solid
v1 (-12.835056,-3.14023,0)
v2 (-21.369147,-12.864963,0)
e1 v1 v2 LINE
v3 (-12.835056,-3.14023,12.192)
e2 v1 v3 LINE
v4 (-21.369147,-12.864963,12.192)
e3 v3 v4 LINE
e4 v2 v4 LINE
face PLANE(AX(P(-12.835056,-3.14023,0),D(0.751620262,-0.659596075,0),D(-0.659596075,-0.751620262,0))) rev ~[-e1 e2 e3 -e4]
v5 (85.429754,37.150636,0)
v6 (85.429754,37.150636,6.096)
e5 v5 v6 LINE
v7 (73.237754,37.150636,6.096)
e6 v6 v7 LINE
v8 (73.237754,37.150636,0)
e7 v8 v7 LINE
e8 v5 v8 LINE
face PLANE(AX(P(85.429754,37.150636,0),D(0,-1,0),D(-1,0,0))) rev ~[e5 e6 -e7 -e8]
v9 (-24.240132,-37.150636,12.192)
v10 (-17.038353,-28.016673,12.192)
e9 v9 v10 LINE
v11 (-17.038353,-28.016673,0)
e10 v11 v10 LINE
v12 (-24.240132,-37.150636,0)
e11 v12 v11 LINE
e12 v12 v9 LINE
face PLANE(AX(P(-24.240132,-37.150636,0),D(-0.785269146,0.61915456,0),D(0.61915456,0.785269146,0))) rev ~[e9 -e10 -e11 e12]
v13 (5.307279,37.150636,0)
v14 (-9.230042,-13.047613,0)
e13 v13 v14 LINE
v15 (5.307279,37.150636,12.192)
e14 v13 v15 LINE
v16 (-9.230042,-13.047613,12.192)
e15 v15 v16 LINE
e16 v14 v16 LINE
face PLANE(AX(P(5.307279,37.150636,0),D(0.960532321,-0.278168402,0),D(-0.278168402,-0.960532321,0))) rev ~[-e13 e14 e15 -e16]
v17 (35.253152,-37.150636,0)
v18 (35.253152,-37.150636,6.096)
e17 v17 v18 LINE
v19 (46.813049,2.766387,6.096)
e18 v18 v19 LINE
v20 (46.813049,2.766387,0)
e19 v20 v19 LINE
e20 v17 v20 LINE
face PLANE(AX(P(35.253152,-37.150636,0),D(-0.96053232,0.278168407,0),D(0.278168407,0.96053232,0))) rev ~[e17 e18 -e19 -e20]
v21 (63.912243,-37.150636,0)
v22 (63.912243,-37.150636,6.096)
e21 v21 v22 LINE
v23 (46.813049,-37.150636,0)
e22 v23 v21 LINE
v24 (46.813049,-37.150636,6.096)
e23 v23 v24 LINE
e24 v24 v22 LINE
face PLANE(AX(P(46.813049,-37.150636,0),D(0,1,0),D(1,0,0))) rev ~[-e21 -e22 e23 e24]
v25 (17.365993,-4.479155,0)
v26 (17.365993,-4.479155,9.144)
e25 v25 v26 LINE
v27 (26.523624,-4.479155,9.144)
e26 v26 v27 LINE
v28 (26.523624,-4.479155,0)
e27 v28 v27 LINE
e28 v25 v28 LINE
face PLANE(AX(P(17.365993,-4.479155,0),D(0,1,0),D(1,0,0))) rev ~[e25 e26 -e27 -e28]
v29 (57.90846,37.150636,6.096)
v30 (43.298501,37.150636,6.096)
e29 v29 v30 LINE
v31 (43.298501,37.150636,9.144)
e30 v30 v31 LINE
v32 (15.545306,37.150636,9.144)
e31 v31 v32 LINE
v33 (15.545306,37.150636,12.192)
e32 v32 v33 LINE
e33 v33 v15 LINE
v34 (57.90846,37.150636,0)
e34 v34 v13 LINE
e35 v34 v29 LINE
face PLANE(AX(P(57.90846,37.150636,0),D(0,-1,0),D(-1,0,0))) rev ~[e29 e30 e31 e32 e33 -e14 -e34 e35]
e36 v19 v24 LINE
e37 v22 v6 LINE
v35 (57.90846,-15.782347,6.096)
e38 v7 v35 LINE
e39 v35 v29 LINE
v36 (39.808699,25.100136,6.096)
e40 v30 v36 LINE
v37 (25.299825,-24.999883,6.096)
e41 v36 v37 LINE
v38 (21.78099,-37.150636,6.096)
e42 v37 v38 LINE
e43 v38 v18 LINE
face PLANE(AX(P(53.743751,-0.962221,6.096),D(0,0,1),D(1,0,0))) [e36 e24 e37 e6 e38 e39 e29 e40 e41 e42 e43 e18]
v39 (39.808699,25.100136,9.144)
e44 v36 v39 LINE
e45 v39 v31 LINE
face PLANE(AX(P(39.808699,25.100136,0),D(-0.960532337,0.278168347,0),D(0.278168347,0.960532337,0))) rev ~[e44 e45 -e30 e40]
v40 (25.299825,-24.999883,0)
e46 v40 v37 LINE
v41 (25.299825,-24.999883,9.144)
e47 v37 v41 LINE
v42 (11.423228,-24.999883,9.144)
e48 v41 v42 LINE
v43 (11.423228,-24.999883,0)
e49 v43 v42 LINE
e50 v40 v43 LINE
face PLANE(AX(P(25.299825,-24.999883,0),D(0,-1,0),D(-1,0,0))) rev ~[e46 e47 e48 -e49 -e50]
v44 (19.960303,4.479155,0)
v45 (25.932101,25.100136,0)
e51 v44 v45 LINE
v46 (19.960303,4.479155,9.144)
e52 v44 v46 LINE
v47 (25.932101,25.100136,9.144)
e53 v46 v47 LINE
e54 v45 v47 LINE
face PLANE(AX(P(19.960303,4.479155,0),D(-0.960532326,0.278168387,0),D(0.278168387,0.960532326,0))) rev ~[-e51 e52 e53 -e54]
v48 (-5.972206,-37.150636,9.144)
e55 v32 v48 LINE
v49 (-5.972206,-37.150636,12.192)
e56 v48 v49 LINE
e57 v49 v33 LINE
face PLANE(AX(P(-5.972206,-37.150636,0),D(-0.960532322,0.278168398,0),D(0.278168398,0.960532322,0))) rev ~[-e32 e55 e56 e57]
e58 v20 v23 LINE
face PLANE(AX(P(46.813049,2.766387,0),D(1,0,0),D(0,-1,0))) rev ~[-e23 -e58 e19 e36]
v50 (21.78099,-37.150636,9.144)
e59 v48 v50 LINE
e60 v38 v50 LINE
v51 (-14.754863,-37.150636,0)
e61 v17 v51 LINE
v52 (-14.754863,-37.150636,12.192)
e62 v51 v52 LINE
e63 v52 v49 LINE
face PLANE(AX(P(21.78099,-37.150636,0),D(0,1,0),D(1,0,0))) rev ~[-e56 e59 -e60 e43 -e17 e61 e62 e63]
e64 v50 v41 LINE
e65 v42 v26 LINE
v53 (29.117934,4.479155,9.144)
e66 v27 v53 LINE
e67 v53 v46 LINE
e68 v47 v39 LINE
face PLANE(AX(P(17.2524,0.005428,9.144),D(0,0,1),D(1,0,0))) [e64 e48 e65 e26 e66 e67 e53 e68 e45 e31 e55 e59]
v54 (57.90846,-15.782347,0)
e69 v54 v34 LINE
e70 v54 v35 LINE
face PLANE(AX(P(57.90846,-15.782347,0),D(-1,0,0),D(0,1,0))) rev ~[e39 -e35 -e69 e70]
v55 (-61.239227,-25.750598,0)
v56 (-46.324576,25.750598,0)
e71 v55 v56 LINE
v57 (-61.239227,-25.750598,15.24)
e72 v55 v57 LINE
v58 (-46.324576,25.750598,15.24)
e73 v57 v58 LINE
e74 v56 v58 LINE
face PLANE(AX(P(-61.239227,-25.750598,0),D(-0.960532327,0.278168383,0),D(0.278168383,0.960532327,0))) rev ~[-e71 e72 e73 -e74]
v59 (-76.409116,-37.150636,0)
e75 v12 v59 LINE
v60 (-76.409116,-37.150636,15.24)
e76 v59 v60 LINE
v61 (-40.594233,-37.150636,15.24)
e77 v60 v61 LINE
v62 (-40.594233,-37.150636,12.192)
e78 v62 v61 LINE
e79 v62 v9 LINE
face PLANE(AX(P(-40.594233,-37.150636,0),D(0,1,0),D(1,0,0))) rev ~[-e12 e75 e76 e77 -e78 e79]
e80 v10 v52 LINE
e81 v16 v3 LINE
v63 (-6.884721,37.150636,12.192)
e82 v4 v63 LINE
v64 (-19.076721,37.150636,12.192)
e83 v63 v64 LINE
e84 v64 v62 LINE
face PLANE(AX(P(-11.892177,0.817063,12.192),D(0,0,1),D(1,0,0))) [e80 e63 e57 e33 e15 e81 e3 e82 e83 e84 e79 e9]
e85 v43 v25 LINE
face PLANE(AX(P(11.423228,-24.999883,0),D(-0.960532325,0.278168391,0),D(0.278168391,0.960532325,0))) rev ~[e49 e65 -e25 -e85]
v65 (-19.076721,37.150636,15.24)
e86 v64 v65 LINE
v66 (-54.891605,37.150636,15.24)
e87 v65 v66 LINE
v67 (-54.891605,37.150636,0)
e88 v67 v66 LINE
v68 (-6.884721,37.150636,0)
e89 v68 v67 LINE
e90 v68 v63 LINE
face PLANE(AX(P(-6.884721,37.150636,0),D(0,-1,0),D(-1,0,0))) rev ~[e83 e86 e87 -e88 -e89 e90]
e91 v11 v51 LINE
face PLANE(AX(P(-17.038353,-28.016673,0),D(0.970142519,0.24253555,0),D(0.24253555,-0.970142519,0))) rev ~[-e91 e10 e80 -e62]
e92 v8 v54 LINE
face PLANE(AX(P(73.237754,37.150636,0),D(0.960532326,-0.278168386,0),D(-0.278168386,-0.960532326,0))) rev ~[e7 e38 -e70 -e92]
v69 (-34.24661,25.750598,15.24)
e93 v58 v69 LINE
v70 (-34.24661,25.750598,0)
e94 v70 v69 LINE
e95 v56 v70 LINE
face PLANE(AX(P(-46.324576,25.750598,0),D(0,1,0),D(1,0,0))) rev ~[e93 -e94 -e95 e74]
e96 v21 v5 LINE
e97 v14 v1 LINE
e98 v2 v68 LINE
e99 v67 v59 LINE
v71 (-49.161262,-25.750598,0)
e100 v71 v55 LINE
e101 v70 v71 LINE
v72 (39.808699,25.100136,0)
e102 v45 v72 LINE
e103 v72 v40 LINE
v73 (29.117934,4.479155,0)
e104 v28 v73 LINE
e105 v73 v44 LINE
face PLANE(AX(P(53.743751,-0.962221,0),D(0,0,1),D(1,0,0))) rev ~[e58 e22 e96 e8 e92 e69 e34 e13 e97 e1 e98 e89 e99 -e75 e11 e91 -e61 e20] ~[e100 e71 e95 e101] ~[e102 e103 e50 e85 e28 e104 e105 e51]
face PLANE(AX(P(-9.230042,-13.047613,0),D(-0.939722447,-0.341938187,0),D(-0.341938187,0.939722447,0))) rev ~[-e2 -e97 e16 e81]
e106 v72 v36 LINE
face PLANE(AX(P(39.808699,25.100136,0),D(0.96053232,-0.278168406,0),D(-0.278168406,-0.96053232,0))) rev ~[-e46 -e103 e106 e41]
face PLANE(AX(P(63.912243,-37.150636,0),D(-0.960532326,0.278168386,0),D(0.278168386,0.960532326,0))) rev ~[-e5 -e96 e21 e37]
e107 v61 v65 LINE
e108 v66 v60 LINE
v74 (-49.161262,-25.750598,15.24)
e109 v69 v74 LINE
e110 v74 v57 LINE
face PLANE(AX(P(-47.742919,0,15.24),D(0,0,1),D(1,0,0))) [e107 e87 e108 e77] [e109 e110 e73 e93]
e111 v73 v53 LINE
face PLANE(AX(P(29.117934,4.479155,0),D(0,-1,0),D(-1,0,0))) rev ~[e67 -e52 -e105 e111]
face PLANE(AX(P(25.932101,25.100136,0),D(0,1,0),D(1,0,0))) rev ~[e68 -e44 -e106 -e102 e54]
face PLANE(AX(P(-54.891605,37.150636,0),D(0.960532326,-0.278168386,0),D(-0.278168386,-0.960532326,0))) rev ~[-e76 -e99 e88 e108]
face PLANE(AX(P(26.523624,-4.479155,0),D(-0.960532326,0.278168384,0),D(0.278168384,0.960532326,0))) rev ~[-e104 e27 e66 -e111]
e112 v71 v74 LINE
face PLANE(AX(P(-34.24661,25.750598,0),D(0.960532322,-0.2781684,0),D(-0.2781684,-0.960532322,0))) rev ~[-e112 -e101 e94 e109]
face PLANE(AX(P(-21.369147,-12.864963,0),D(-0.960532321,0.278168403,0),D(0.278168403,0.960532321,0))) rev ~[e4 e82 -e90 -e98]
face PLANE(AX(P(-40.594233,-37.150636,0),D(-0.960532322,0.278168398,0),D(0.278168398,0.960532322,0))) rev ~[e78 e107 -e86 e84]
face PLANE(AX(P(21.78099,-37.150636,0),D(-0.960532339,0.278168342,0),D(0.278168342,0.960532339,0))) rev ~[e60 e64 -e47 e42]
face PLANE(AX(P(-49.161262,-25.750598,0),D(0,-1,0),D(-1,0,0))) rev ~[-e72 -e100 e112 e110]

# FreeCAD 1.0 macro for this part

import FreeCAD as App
import Part
import Sketcher
Q = App.Units.Quantity

doc = App.newDocument("Part")
body = doc.addObject("PartDesign::Body", "Body")

# Sketch on XY plane
sketch1 = doc.addObject("Sketcher::SketchObject", "Sketch")
body.addObject(sketch1)
sketch1.AttachmentSupport = (doc.XY_Plane, [""])
sketch1.MapMode = "FlatFace"
sketch1.addGeometry([
    Part.LineSegment(App.Vector(-19, 37, 0), App.Vector(-55, 37, 0)),  # 0
    Part.LineSegment(App.Vector(-55, 37, 0), App.Vector(-76, -37, 0)),  # 1
    Part.LineSegment(App.Vector(-76, -37, 0), App.Vector(-41, -37, 0)),  # 2
    Part.LineSegment(App.Vector(-41, -37, 0), App.Vector(-19, 37, 0)),  # 3
    Part.LineSegment(App.Vector(-49, -26, 0), App.Vector(-61, -26, 0)),  # 4
    Part.LineSegment(App.Vector(-61, -26, 0), App.Vector(-46, 26, 0)),  # 5
    Part.LineSegment(App.Vector(-46, 26, 0), App.Vector(-34, 26, 0)),  # 6
    Part.LineSegment(App.Vector(-34, 26, 0), App.Vector(-49, -26, 0)),  # 7
], False)
sketch1.addConstraint([
    Sketcher.Constraint("Coincident", 0, 2, 1, 1),
    Sketcher.Constraint("Coincident", 1, 2, 2, 1),
    Sketcher.Constraint("Coincident", 2, 2, 3, 1),
    Sketcher.Constraint("Coincident", 3, 2, 0, 1),
    Sketcher.Constraint("Coincident", 4, 2, 5, 1),
    Sketcher.Constraint("Coincident", 5, 2, 6, 1),
    Sketcher.Constraint("Coincident", 6, 2, 7, 1),
    Sketcher.Constraint("Coincident", 7, 2, 4, 1),
    Sketcher.Constraint("Horizontal", 0),
    Sketcher.Constraint("Horizontal", 2),
    Sketcher.Constraint("Horizontal", 4),
    Sketcher.Constraint("Horizontal", 6),
    Sketcher.Constraint("Parallel", 1, 3),
    Sketcher.Constraint("Parallel", 3, 5),
    Sketcher.Constraint("Parallel", 5, 7),
    Sketcher.Constraint("DistanceY", 4, 2, -1, 1, 25.750598),
    Sketcher.Constraint("DistanceY", -1, 1, 5, 2, 25.750598),
    Sketcher.Constraint("Distance", 7, 53.617348),
    Sketcher.Constraint("DistanceX", 0, 2, 0, 1, 35.814884),
    Sketcher.Constraint("DistanceX", 4, 2, 4, 1, 12.077965),
    Sketcher.Constraint("DistanceX", 3, 2, -1, 1, 19.076721),
    Sketcher.Constraint("DistanceX", 6, 2, -1, 1, 34.24661),
    Sketcher.Constraint("DistanceX", 1, 2, 0, 2, 21.517511),
    Sketcher.Constraint("DistanceY", -1, 1, 0, 2, 37.150636),
])
pad1 = doc.addObject("PartDesign::Pad", "Pad")
body.addObject(pad1)
pad1.Profile = sketch1
pad1.Length = Q("0.6 in")

# Sketch on XY plane
sketch2 = doc.addObject("Sketcher::SketchObject", "Sketch001")
body.addObject(sketch2)
sketch2.AttachmentSupport = (doc.XY_Plane, [""])
sketch2.MapMode = "FlatFace"
sketch2.addGeometry([
    Part.LineSegment(App.Vector(-7, 37, 0), App.Vector(-19, 37, 0)),  # 0
    Part.LineSegment(App.Vector(-19, 37, 0), App.Vector(-41, -37, 0)),  # 1
    Part.LineSegment(App.Vector(-41, -37, 0), App.Vector(-24, -37, 0)),  # 2
    Part.LineSegment(App.Vector(-24, -37, 0), App.Vector(-17, -28, 0)),  # 3
    Part.LineSegment(App.Vector(-17, -28, 0), App.Vector(-15, -37, 0)),  # 4
    Part.LineSegment(App.Vector(-15, -37, 0), App.Vector(-6, -37, 0)),  # 5
    Part.LineSegment(App.Vector(-6, -37, 0), App.Vector(16, 37, 0)),  # 6
    Part.LineSegment(App.Vector(16, 37, 0), App.Vector(5, 37, 0)),  # 7
    Part.LineSegment(App.Vector(5, 37, 0), App.Vector(-9, -13, 0)),  # 8
    Part.LineSegment(App.Vector(-9, -13, 0), App.Vector(-13, -3, 0)),  # 9
    Part.LineSegment(App.Vector(-13, -3, 0), App.Vector(-21, -13, 0)),  # 10
    Part.LineSegment(App.Vector(-21, -13, 0), App.Vector(-7, 37, 0)),  # 11
], False)
sketch2.addConstraint([
    Sketcher.Constraint("Coincident", 0, 2, 1, 1),
    Sketcher.Constraint("Coincident", 1, 2, 2, 1),
    Sketcher.Constraint("Coincident", 2, 2, 3, 1),
    Sketcher.Constraint("Coincident", 3, 2, 4, 1),
    Sketcher.Constraint("Coincident", 4, 2, 5, 1),
    Sketcher.Constraint("Coincident", 5, 2, 6, 1),
    Sketcher.Constraint("Coincident", 6, 2, 7, 1),
    Sketcher.Constraint("Coincident", 7, 2, 8, 1),
    Sketcher.Constraint("Coincident", 8, 2, 9, 1),
    Sketcher.Constraint("Coincident", 9, 2, 10, 1),
    Sketcher.Constraint("Coincident", 10, 2, 11, 1),
    Sketcher.Constraint("Coincident", 11, 2, 0, 1),
    Sketcher.Constraint("Horizontal", 0),
    Sketcher.Constraint("Horizontal", 2),
    Sketcher.Constraint("Horizontal", 5),
    Sketcher.Constraint("Horizontal", 7),
    Sketcher.Constraint("Parallel", 1, 6),
    Sketcher.Constraint("Parallel", 6, 8),
    Sketcher.Constraint("Parallel", 8, 11),
    Sketcher.Constraint("Horizontal", 2, 2, 4, 2),
    Sketcher.Constraint("Horizontal", 0, 2, 6, 2),
    Sketcher.Constraint("DistanceX", 0, 2, 0, 1, Q("0.48 in")),
    Sketcher.Constraint("DistanceX", 0, 2, 7, 2, Q("0.96 in")),
    Sketcher.Constraint("DistanceX", 2, 1, 2, 2, 16.354101),
    Sketcher.Constraint("DistanceX", 4, 2, -1, 1, Q("0.5809001 in")),
    Sketcher.Constraint("Distance", 10, 12.938359),
    Sketcher.Constraint("Distance", 11, 52.070709),
    Sketcher.Constraint("DistanceX", 5, 1, 5, 2, 8.782657),
    Sketcher.Constraint("DistanceX", 7, 2, 7, 1, 10.238027),
    Sketcher.Constraint("DistanceX", 0, 2, -1, 1, 19.076721),
    Sketcher.Constraint("DistanceX", 8, 2, -1, 1, 9.230042),
    Sketcher.Constraint("DistanceY", 9, 2, -1, 1, 3.14023),
    Sketcher.Constraint("DistanceY", 1, 2, 0, 2, 74.301272),
    Sketcher.Constraint("DistanceX", 2, 2, 3, 2, 7.201779),
    Sketcher.Constraint("DistanceY", 3, 2, 0, 2, 65.167309),
    Sketcher.Constraint("DistanceX", 9, 2, 5, 2, 6.86285),
])
pad2 = doc.addObject("PartDesign::Pad", "Pad001")
body.addObject(pad2)
pad2.Profile = sketch2
pad2.Length = Q("0.48 in")

# Sketch on XY plane
sketch3 = doc.addObject("Sketcher::SketchObject", "Sketch002")
body.addObject(sketch3)
sketch3.AttachmentSupport = (doc.XY_Plane, [""])
sketch3.MapMode = "FlatFace"
sketch3.addGeometry([
    Part.LineSegment(App.Vector(43, 37, 0), App.Vector(16, 37, 0)),  # 0
    Part.LineSegment(App.Vector(16, 37, 0), App.Vector(-6, -37, 0)),  # 1
    Part.LineSegment(App.Vector(-6, -37, 0), App.Vector(22, -37, 0)),  # 2
    Part.LineSegment(App.Vector(22, -37, 0), App.Vector(25, -25, 0)),  # 3
    Part.LineSegment(App.Vector(25, -25, 0), App.Vector(11, -25, 0)),  # 4
    Part.LineSegment(App.Vector(11, -25, 0), App.Vector(17, -4, 0)),  # 5
    Part.LineSegment(App.Vector(17, -4, 0), App.Vector(27, -4, 0)),  # 6
    Part.LineSegment(App.Vector(27, -4, 0), App.Vector(29, 4, 0)),  # 7
    Part.LineSegment(App.Vector(29, 4, 0), App.Vector(20, 4, 0)),  # 8
    Part.LineSegment(App.Vector(20, 4, 0), App.Vector(26, 25, 0)),  # 9
    Part.LineSegment(App.Vector(26, 25, 0), App.Vector(40, 25, 0)),  # 10
    Part.LineSegment(App.Vector(40, 25, 0), App.Vector(43, 37, 0)),  # 11
], False)
sketch3.addConstraint([
    Sketcher.Constraint("Coincident", 0, 2, 1, 1),
    Sketcher.Constraint("Coincident", 1, 2, 2, 1),
    Sketcher.Constraint("Coincident", 2, 2, 3, 1),
    Sketcher.Constraint("Coincident", 3, 2, 4, 1),
    Sketcher.Constraint("Coincident", 4, 2, 5, 1),
    Sketcher.Constraint("Coincident", 5, 2, 6, 1),
    Sketcher.Constraint("Coincident", 6, 2, 7, 1),
    Sketcher.Constraint("Coincident", 7, 2, 8, 1),
    Sketcher.Constraint("Coincident", 8, 2, 9, 1),
    Sketcher.Constraint("Coincident", 9, 2, 10, 1),
    Sketcher.Constraint("Coincident", 10, 2, 11, 1),
    Sketcher.Constraint("Coincident", 11, 2, 0, 1),
    Sketcher.Constraint("Horizontal", 0),
    Sketcher.Constraint("Horizontal", 2),
    Sketcher.Constraint("Horizontal", 4),
    Sketcher.Constraint("Horizontal", 6),
    Sketcher.Constraint("Horizontal", 8),
    Sketcher.Constraint("Horizontal", 10),
    Sketcher.Constraint("Parallel", 1, 3),
    Sketcher.Constraint("Parallel", 3, 5),
    Sketcher.Constraint("Parallel", 5, 7),
    Sketcher.Constraint("Parallel", 7, 9),
    Sketcher.Constraint("Parallel", 9, 11),
    Sketcher.Constraint("Equal", 0, 2),
    Sketcher.Constraint("Equal", 6, 8),
    Sketcher.Constraint("Distance", 7, 9.326401),
    Sketcher.Constraint("DistanceX", 6, 1, 6, 2, 9.157631),
    Sketcher.Constraint("DistanceX", -1, 1, 9, 2, 25.932101),
    Sketcher.Constraint("DistanceX", -1, 1, 10, 2, 39.808699),
    Sketcher.Constraint("DistanceX", -1, 1, 11, 2, 43.298501),
    Sketcher.Constraint("DistanceX", 1, 2, 5, 2, 23.338199),
    Sketcher.Constraint("DistanceX", 3, 2, 6, 2, 1.223799),
    Sketcher.Constraint("DistanceY", 9, 2, 0, 2, 12.0505),
    Sketcher.Constraint("DistanceX", 8, 2, 11, 2, 23.338198),
    Sketcher.Constraint("Distance", 3, 12.65002),
    Sketcher.Constraint("DistanceY", -1, 1, 0, 2, 37.150636),
])
pad3 = doc.addObject("PartDesign::Pad", "Pad002")
body.addObject(pad3)
pad3.Profile = sketch3
pad3.Length = Q("0.36 in")

# Sketch on XY plane
sketch4 = doc.addObject("Sketcher::SketchObject", "Sketch003")
body.addObject(sketch4)
sketch4.AttachmentSupport = (doc.XY_Plane, [""])
sketch4.MapMode = "FlatFace"
sketch4.addGeometry([
    Part.LineSegment(App.Vector(58, 37, 0), App.Vector(43, 37, 0)),  # 0
    Part.LineSegment(App.Vector(43, 37, 0), App.Vector(40, 25, 0)),  # 1
    Part.LineSegment(App.Vector(40, 25, 0), App.Vector(25, -25, 0)),  # 2
    Part.LineSegment(App.Vector(25, -25, 0), App.Vector(22, -37, 0)),  # 3
    Part.LineSegment(App.Vector(22, -37, 0), App.Vector(35, -37, 0)),  # 4
    Part.LineSegment(App.Vector(35, -37, 0), App.Vector(47, 3, 0)),  # 5
    Part.LineSegment(App.Vector(47, 3, 0), App.Vector(47, -37, 0)),  # 6
    Part.LineSegment(App.Vector(47, -37, 0), App.Vector(64, -37, 0)),  # 7
    Part.LineSegment(App.Vector(64, -37, 0), App.Vector(85, 37, 0)),  # 8
    Part.LineSegment(App.Vector(85, 37, 0), App.Vector(73, 37, 0)),  # 9
    Part.LineSegment(App.Vector(73, 37, 0), App.Vector(58, -16, 0)),  # 10
    Part.LineSegment(App.Vector(58, -16, 0), App.Vector(58, 37, 0)),  # 11
], False)
sketch4.addConstraint([
    Sketcher.Constraint("Coincident", 0, 2, 1, 1),
    Sketcher.Constraint("Coincident", 1, 2, 2, 1),
    Sketcher.Constraint("Coincident", 2, 2, 3, 1),
    Sketcher.Constraint("Coincident", 3, 2, 4, 1),
    Sketcher.Constraint("Coincident", 4, 2, 5, 1),
    Sketcher.Constraint("Coincident", 5, 2, 6, 1),
    Sketcher.Constraint("Coincident", 6, 2, 7, 1),
    Sketcher.Constraint("Coincident", 7, 2, 8, 1),
    Sketcher.Constraint("Coincident", 8, 2, 9, 1),
    Sketcher.Constraint("Coincident", 9, 2, 10, 1),
    Sketcher.Constraint("Coincident", 10, 2, 11, 1),
    Sketcher.Constraint("Coincident", 11, 2, 0, 1),
    Sketcher.Constraint("Horizontal", 0),
    Sketcher.Constraint("Horizontal", 4),
    Sketcher.Constraint("Vertical", 6),
    Sketcher.Constraint("Horizontal", 7),
    Sketcher.Constraint("Horizontal", 9),
    Sketcher.Constraint("Vertical", 11),
    Sketcher.Constraint("Parallel", 1, 2),
    Sketcher.Constraint("Parallel", 2, 3),
    Sketcher.Constraint("Parallel", 3, 5),
    Sketcher.Constraint("Parallel", 5, 8),
    Sketcher.Constraint("Parallel", 8, 10),
    Sketcher.Constraint("Horizontal", 4, 2, 6, 2),
    Sketcher.Constraint("Horizontal", 0, 2, 8, 2),
    Sketcher.Constraint("DistanceX", 9, 2, 9, 1, Q("0.48 in")),
    Sketcher.Constraint("DistanceX", 4, 1, 4, 2, Q("0.5304001 in")),
    Sketcher.Constraint("DistanceX", 0, 2, 0, 1, 14.609959),
    Sketcher.Constraint("DistanceX", -1, 1, 0, 2, 43.298501),
    Sketcher.Constraint("DistanceX", -1, 1, 1, 2, 39.808699),
    Sketcher.Constraint("DistanceY", 1, 2, 0, 2, 12.0505),
    Sketcher.Constraint("Distance", 3, 12.65002),
    Sketcher.Constraint("Distance", 5, 41.557189),
    Sketcher.Constraint("DistanceX", 7, 1, 7, 2, 17.099194),
    Sketcher.Constraint("DistanceX", -1, 1, 3, 2, 21.78099),
    Sketcher.Constraint("DistanceY", -1, 1, 0, 2, 37.150636),
])
pad4 = doc.addObject("PartDesign::Pad", "Pad003")
body.addObject(pad4)
pad4.Profile = sketch4
pad4.Length = Q("0.24 in")

doc.recompute()
